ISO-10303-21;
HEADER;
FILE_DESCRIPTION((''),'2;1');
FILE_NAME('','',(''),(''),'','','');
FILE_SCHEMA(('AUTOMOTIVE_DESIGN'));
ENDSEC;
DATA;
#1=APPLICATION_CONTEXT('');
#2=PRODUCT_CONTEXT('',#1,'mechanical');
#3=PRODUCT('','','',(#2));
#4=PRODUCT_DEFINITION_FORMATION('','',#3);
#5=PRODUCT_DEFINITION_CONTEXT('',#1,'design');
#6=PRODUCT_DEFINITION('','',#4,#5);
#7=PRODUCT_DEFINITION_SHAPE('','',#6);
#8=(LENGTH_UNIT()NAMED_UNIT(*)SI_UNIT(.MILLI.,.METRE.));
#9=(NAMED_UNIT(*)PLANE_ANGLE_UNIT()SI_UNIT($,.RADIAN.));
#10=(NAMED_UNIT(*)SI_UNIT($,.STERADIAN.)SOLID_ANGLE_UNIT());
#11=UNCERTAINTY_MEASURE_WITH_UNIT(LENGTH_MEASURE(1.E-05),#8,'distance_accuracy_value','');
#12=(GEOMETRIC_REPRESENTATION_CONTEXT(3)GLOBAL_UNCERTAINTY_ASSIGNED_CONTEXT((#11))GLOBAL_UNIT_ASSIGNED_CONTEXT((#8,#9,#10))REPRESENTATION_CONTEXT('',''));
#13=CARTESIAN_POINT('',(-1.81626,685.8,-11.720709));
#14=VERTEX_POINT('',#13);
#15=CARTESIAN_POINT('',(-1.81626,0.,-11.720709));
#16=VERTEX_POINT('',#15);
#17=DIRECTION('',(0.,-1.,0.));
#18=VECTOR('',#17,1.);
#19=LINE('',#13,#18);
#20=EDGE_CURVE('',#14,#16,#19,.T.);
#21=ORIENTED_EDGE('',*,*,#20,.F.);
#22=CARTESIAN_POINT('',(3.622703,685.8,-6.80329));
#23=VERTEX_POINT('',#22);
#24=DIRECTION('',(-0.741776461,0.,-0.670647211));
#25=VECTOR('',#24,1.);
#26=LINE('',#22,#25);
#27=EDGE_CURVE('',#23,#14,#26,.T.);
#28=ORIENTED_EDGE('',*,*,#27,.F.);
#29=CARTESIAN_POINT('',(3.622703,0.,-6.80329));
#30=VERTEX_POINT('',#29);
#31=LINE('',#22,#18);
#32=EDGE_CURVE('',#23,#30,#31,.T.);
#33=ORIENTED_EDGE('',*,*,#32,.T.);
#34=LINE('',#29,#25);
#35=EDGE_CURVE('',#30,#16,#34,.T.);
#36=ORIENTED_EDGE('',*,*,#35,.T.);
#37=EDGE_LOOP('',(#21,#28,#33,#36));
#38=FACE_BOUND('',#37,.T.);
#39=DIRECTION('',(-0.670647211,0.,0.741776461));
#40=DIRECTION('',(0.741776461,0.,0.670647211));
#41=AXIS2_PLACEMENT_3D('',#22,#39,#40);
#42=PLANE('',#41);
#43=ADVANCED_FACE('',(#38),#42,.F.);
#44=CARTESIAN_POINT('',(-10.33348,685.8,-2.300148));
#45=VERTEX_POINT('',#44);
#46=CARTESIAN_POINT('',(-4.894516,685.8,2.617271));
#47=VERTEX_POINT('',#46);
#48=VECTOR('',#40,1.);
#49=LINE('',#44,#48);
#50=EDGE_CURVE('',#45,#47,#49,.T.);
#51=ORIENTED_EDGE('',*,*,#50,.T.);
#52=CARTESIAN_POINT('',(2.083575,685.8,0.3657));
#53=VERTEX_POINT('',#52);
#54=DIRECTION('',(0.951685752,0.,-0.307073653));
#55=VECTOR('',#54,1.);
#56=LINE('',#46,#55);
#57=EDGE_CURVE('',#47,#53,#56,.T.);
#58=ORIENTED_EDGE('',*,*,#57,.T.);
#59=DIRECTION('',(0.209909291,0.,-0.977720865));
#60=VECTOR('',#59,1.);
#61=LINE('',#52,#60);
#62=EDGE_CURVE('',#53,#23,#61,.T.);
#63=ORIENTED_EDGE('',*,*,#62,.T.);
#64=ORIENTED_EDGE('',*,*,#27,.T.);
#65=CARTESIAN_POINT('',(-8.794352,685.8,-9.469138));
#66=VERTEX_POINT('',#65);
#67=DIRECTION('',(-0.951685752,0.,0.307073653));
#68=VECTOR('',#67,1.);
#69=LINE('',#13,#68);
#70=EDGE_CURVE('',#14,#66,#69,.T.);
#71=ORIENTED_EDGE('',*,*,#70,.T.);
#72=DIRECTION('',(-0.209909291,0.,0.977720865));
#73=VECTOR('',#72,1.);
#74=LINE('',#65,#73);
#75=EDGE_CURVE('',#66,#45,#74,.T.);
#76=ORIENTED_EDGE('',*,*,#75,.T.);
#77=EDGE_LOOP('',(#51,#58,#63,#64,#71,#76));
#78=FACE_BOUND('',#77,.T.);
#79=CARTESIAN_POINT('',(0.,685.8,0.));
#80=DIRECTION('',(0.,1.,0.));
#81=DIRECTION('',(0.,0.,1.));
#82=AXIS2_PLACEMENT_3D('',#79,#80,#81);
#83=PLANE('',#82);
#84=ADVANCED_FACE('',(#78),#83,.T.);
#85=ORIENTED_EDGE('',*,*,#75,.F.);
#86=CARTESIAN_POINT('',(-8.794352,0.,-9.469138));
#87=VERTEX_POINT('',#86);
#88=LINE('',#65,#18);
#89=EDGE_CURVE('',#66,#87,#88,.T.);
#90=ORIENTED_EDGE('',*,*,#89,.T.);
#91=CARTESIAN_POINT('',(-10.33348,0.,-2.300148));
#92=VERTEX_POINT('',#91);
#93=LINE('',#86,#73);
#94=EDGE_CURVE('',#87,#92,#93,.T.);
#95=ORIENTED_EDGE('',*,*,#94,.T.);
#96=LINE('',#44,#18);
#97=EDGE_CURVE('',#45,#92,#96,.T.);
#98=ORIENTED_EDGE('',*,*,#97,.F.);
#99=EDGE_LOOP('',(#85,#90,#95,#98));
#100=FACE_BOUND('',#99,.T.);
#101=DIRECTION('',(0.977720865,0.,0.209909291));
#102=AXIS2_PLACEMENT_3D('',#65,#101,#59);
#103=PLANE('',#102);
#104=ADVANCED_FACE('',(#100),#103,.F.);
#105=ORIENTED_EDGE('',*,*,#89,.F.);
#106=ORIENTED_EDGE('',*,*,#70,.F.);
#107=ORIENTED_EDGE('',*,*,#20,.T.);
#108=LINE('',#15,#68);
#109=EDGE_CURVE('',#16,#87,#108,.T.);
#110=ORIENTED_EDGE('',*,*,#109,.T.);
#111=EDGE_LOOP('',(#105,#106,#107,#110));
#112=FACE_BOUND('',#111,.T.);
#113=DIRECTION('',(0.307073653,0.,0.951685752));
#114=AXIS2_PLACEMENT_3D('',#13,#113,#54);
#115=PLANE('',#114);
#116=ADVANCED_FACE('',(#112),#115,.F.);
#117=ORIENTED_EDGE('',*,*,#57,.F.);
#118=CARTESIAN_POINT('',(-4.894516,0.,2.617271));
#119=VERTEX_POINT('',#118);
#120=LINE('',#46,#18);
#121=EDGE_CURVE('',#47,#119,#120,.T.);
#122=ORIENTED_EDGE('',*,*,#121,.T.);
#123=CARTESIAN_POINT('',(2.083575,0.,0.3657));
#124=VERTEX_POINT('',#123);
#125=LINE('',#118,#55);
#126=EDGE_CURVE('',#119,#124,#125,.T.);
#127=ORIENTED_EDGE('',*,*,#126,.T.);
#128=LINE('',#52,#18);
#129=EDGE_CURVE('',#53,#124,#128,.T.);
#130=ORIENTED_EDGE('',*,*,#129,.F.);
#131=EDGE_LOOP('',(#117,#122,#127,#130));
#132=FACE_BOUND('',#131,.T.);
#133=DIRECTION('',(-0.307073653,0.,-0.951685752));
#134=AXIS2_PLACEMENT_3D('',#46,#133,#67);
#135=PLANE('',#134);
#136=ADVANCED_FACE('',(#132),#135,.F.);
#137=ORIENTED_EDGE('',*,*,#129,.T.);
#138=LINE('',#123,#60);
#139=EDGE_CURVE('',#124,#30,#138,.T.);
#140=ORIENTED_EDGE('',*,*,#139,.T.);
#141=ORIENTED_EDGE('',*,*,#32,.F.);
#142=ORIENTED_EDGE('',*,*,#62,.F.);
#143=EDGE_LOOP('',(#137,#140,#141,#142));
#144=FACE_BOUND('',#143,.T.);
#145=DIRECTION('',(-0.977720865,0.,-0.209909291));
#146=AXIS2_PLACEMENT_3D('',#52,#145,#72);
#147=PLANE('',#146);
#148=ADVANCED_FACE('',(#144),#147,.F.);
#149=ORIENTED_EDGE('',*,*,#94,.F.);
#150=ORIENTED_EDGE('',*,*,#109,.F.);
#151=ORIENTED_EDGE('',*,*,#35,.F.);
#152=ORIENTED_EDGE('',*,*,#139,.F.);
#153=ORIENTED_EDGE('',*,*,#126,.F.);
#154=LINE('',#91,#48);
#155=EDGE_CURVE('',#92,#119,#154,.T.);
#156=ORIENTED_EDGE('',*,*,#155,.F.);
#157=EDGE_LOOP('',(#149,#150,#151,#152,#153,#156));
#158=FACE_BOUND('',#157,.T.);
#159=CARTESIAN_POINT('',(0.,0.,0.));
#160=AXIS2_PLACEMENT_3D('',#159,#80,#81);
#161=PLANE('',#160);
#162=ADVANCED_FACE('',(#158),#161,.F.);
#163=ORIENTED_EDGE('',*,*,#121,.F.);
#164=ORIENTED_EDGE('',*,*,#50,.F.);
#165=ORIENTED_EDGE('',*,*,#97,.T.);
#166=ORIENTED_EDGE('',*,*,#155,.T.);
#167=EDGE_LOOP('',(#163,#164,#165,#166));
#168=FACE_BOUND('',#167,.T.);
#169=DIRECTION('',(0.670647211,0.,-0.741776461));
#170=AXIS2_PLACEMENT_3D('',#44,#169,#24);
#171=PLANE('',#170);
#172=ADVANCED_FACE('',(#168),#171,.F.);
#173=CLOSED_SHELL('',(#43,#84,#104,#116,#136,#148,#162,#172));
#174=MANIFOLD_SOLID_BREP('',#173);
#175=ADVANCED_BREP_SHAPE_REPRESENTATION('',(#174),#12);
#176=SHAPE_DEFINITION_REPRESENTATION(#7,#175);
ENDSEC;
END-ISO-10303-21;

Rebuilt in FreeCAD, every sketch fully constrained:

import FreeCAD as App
import Part
import Sketcher
Q = App.Units.Quantity


def add_polygon(sketch, points):
    """Adds a closed chain of lines whose ends are joined by coincident constraints."""
    first, n = sketch.GeometryCount, len(points)
    for a, b in zip(points, points[1:] + points[:1]):
        sketch.addGeometry(Part.LineSegment(App.Vector(*a, 0), App.Vector(*b, 0)), False)
    for i in range(n):
        sketch.addConstraint(Sketcher.Constraint("Coincident", first + i, 2, first + (i + 1) % n, 1))

doc = App.newDocument("Part")
body = doc.addObject("PartDesign::Body", "Body")

sketch1 = body.newObject("Sketcher::SketchObject", "Sketch")
sketch1.AttachmentSupport = (doc.getObject("XZ_Plane"), [""])
sketch1.MapMode = "FlatFace"
add_polygon(sketch1, [(2, 0), (4, -7), (-2, -12), (-9, -9), (-10, -2), (-5, 3)])
sketch1.addConstraint([
    Sketcher.Constraint("Parallel", 0, 3),
    Sketcher.Constraint("Parallel", 1, 4),
    Sketcher.Constraint("Parallel", 2, 5),
    Sketcher.Constraint("Equal", 0, 1),
    Sketcher.Constraint("Equal", 1, 2),
    Sketcher.Constraint("Equal", 2, 3),
    Sketcher.Constraint("DistanceY", -1, 1, 5, 2, Q("0.3657 mm")),
    Sketcher.Constraint("Distance", 0, Q("7.332348 mm")),
    Sketcher.Constraint("DistanceY", 0, 2, -1, 1, Q("6.80329 mm")),
    Sketcher.Constraint("DistanceX", 1, 2, -1, 1, Q("1.81626 mm")),
    Sketcher.Constraint("DistanceY", 1, 2, -1, 1, Q("11.720709 mm")),
    Sketcher.Constraint("DistanceX", 2, 2, -1, 1, Q("8.794352 mm")),
])
pad1 = body.newObject("PartDesign::Pad", "Pad")
pad1.Profile = sketch1
pad1.Length = Q("27 in")
pad1.Reversed = True

doc.recompute()
